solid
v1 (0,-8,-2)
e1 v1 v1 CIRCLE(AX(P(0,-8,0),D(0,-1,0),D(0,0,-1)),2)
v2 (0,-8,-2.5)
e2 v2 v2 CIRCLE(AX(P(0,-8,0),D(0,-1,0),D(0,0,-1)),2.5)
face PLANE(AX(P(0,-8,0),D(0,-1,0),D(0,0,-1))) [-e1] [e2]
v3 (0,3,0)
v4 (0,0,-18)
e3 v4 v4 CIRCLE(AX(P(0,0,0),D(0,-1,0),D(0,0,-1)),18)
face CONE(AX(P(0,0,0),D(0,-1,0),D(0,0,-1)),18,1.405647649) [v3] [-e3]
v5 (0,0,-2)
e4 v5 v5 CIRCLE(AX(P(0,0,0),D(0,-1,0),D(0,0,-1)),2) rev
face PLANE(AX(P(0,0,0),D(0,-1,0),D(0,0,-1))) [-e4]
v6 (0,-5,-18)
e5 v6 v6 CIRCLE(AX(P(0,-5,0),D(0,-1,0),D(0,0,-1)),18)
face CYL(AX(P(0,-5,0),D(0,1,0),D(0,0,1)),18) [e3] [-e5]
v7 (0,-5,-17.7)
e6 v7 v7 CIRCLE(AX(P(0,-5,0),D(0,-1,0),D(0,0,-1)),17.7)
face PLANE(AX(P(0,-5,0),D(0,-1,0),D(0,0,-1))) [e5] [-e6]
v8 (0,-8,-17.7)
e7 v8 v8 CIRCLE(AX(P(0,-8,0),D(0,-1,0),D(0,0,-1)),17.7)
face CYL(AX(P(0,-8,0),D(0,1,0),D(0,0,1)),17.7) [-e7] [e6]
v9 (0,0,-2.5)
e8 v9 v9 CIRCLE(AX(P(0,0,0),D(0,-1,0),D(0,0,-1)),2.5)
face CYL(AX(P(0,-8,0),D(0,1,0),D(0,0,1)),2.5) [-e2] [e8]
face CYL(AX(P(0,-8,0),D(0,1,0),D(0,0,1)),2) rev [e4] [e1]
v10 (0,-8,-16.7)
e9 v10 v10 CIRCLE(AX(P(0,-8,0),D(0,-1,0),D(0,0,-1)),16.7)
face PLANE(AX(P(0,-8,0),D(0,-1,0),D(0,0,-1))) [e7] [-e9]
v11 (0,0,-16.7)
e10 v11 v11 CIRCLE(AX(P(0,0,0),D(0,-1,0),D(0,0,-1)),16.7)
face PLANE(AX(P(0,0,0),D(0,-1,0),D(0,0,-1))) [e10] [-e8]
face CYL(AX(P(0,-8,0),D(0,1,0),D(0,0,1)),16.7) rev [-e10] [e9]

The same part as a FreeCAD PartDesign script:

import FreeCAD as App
import Part
import Sketcher
from FreeCAD import Vector
Q = App.Units.Quantity


def add_polygon(sketch, points):
    """Adds a closed chain of lines whose ends are joined by coincident constraints."""
    first, n = sketch.GeometryCount, len(points)
    for a, b in zip(points, points[1:] + points[:1]):
        sketch.addGeometry(Part.LineSegment(App.Vector(*a, 0), App.Vector(*b, 0)), False)
    for i in range(n):
        sketch.addConstraint(Sketcher.Constraint("Coincident", first + i, 2, first + (i + 1) % n, 1))

doc = App.newDocument("Part")
body = doc.addObject("PartDesign::Body", "Body")

sketch1 = body.newObject("Sketcher::SketchObject", "Sketch")
sketch1.AttachmentSupport = (doc.getObject("YZ_Plane"), [""])
sketch1.MapMode = "FlatFace"
add_polygon(sketch1, [(3, 0), (0, 0), (0, -18)])
sketch1.addConstraint(Sketcher.Constraint("Horizontal", 0))
sketch1.addConstraint(Sketcher.Constraint("Vertical", 1))
sketch1.addConstraint(Sketcher.Constraint("Coincident", 0, 2, -1, 1))
sketch1.addConstraint(Sketcher.Constraint("DistanceX", 0, 2, 0, 1, Q("3 mm")))
sketch1.addConstraint(Sketcher.Constraint("DistanceY", 1, 2, 1, 1, Q("18 mm")))
revolution = body.newObject("PartDesign::Revolution", "Revolution")
revolution.Profile = sketch1
revolution.ReferenceAxis = (sketch1, ["H_Axis"])
revolution.Angle = 360

sketch2 = body.newObject("Sketcher::SketchObject", "Sketch001")
sketch2.AttachmentSupport = (doc.getObject("XZ_Plane"), [""])
sketch2.MapMode = "FlatFace"
sketch2.addGeometry(Part.Circle(Vector(0, 0, 0), Vector(0, 0, 1), 18), False)
sketch2.addConstraint(Sketcher.Constraint("Coincident", 0, 3, -1, 1))
sketch2.addConstraint(Sketcher.Constraint("Diameter", 0, Q("36 mm")))
pad1 = body.newObject("PartDesign::Pad", "Pad")
pad1.Profile = sketch2
pad1.Length = 5

sketch3 = body.newObject("Sketcher::SketchObject", "Sketch002")
sketch3.AttachmentSupport = (doc.getObject("XZ_Plane"), [""])
sketch3.MapMode = "FlatFace"
sketch3.AttachmentOffset = App.Placement(Vector(0, 0, 5), App.Rotation())
sketch3.addGeometry(Part.Circle(Vector(0, 0, 0), Vector(0, 0, 1), 17.7), False)
sketch3.addGeometry(Part.Circle(Vector(0, 0, 0), Vector(0, 0, 1), 16.7), False)
sketch3.addConstraint(Sketcher.Constraint("Coincident", 0, 3, -1, 1))
sketch3.addConstraint(Sketcher.Constraint("Coincident", 1, 3, -1, 1))
sketch3.addConstraint(Sketcher.Constraint("Diameter", 0, Q("35.4 mm")))
sketch3.addConstraint(Sketcher.Constraint("Diameter", 1, Q("33.4 mm")))
pad2 = body.newObject("PartDesign::Pad", "Pad001")
pad2.Profile = sketch3
pad2.Length = 3

sketch4 = body.newObject("Sketcher::SketchObject", "Sketch003")
sketch4.AttachmentSupport = (doc.getObject("XZ_Plane"), [""])
sketch4.MapMode = "FlatFace"
sketch4.addGeometry(Part.Circle(Vector(0, 0, 0), Vector(0, 0, 1), 16.7), False)
sketch4.addConstraint(Sketcher.Constraint("Coincident", 0, 3, -1, 1))
sketch4.addConstraint(Sketcher.Constraint("Diameter", 0, Q("33.4 mm")))
pocket1 = body.newObject("PartDesign::Pocket", "Pocket")
pocket1.Profile = sketch4
pocket1.Length = 5
pocket1.Reversed = True

sketch5 = body.newObject("Sketcher::SketchObject", "Sketch004")
sketch5.AttachmentSupport = (doc.getObject("XZ_Plane"), [""])
sketch5.MapMode = "FlatFace"
sketch5.addGeometry(Part.Circle(Vector(0, 0, 0), Vector(0, 0, 1), 2.5), False)
sketch5.addGeometry(Part.Circle(Vector(0, 0, 0), Vector(0, 0, 1), 2), False)
sketch5.addConstraint(Sketcher.Constraint("Coincident", 0, 3, -1, 1))
sketch5.addConstraint(Sketcher.Constraint("Coincident", 1, 3, -1, 1))
sketch5.addConstraint(Sketcher.Constraint("Diameter", 0, Q("5 mm")))
sketch5.addConstraint(Sketcher.Constraint("Diameter", 1, Q("4 mm")))
pad3 = body.newObject("PartDesign::Pad", "Pad002")
pad3.Profile = sketch5
pad3.Length = 8

doc.recompute()
